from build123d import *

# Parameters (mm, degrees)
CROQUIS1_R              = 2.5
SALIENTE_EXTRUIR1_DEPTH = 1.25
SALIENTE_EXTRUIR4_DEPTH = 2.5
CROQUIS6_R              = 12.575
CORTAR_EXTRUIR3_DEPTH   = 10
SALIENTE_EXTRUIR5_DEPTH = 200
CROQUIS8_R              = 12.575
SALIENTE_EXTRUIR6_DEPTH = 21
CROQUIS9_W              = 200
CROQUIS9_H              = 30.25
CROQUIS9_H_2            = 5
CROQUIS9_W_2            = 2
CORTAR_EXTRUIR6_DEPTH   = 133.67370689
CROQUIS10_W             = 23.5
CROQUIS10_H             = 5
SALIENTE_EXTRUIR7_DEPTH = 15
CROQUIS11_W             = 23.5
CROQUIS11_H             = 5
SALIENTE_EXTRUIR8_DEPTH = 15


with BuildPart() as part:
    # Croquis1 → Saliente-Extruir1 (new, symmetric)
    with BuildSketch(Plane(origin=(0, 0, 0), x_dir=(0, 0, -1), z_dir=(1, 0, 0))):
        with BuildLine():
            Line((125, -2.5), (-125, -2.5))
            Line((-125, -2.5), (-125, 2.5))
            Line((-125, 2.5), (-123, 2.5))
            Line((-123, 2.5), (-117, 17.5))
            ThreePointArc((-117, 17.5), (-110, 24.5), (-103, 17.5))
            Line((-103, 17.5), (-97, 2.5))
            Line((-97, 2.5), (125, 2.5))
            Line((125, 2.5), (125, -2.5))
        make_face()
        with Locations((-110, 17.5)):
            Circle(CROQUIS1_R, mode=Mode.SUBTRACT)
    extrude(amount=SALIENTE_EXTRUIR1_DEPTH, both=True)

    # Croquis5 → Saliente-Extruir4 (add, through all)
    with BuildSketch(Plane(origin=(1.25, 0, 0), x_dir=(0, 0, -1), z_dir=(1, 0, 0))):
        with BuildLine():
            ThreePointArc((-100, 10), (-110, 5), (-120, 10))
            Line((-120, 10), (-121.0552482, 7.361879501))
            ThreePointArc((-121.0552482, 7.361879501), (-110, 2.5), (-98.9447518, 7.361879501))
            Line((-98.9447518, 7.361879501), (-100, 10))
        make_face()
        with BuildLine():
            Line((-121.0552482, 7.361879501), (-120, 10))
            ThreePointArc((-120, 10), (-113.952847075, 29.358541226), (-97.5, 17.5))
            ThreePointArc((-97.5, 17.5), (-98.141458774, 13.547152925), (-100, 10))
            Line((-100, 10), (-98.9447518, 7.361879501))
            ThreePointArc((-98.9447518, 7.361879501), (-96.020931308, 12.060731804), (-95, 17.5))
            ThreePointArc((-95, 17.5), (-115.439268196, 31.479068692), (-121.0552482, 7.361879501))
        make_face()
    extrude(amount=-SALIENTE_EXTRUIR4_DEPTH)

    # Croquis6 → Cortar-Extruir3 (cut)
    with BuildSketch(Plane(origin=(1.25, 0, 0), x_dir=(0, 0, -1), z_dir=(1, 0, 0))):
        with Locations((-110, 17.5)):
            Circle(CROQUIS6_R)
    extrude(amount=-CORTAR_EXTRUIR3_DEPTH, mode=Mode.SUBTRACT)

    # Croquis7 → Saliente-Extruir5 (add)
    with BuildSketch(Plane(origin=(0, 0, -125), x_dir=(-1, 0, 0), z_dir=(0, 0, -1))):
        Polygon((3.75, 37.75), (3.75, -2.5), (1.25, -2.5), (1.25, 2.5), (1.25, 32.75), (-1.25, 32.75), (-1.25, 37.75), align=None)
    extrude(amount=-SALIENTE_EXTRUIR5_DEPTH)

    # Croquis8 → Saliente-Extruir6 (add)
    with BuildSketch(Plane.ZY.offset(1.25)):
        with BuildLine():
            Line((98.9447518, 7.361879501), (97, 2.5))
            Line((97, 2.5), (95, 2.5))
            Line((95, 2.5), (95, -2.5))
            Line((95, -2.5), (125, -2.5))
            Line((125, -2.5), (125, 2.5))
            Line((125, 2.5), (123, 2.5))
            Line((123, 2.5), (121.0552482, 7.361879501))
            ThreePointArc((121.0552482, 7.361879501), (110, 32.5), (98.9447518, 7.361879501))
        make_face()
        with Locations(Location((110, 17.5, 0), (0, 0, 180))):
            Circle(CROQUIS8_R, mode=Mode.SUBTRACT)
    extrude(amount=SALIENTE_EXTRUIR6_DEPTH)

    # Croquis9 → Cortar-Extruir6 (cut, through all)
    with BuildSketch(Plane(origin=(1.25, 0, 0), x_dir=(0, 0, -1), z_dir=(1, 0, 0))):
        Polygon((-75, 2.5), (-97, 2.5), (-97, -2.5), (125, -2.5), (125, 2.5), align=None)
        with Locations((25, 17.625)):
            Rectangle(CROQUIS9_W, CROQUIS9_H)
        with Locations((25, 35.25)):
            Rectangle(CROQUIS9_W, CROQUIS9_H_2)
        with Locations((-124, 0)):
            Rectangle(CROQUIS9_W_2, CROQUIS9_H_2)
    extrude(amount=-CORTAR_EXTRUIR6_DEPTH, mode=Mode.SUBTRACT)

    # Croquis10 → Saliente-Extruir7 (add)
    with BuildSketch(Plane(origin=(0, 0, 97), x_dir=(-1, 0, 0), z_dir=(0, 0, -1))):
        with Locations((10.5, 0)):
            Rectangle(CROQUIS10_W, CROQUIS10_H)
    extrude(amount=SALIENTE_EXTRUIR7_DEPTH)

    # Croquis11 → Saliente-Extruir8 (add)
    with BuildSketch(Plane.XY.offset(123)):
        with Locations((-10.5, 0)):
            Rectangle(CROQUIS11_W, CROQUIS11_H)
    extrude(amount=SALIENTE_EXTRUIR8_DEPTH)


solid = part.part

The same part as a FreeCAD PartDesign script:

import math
import FreeCAD as App
import Part
import Sketcher
from FreeCAD import Vector


def add_polygon(sketch, points):
    """Adds a closed chain of lines whose ends are joined by coincident constraints."""
    first, n = sketch.GeometryCount, len(points)
    for a, b in zip(points, points[1:] + points[:1]):
        sketch.addGeometry(Part.LineSegment(App.Vector(*a, 0), App.Vector(*b, 0)), False)
    for i in range(n):
        sketch.addConstraint(Sketcher.Constraint("Coincident", first + i, 2, first + (i + 1) % n, 1))

doc = App.newDocument("Part")
body = doc.addObject("PartDesign::Body", "Body")

sketch1 = doc.addObject("Sketcher::SketchObject", "Sketch")
body.addObject(sketch1)
sketch1.AttachmentSupport = (doc.YZ_Plane, [""])
sketch1.MapMode = "FlatFace"
sketch1.addGeometry([
    Part.LineSegment(Vector(-2.5, 125, 0), Vector(-2.5, -125, 0)),
    Part.LineSegment(Vector(-2.5, -125, 0), Vector(2.5, -125, 0)),
    Part.LineSegment(Vector(2.5, -125, 0), Vector(2.5, 97, 0)),
    Part.LineSegment(Vector(2.5, 97, 0), Vector(17.5, 103, 0)),
    Part.ArcOfCircle(Part.Circle(Vector(17.5, 110, 0), Vector(0, 0, 1), 7), math.radians(-90), math.radians(90)),
    Part.LineSegment(Vector(17.5, 117, 0), Vector(2.5, 123, 0)),
    Part.LineSegment(Vector(2.5, 123, 0), Vector(2.5, 125, 0)),
    Part.LineSegment(Vector(2.5, 125, 0), Vector(-2.5, 125, 0)),
    Part.Circle(Vector(17.5, 110, 0), Vector(0, 0, 1), 2.5),
], False)
sketch1.addConstraint([
    Sketcher.Constraint("Coincident", 0, 2, 1, 1),
    Sketcher.Constraint("Coincident", 1, 2, 2, 1),
    Sketcher.Constraint("Coincident", 2, 2, 3, 1),
    Sketcher.Constraint("Coincident", 3, 2, 4, 1),
    Sketcher.Constraint("Coincident", 4, 2, 5, 1),
    Sketcher.Constraint("Coincident", 5, 2, 6, 1),
    Sketcher.Constraint("Coincident", 6, 2, 7, 1),
    Sketcher.Constraint("Coincident", 7, 2, 0, 1),
    Sketcher.Constraint("Vertical", 0),
    Sketcher.Constraint("Horizontal", 1),
    Sketcher.Constraint("Vertical", 2),
    Sketcher.Constraint("Vertical", 6),
    Sketcher.Constraint("Horizontal", 7),
    Sketcher.Constraint("Coincident", 8, 3, 4, 3),
    Sketcher.Constraint("Symmetric", 0, 2, 6, 2, -1, 1),
    Sketcher.Constraint("Vertical", 8, 3, 3, 2),
    Sketcher.Constraint("Vertical", 3, 2, 4, 2),
    Sketcher.Constraint("Vertical", 2, 2, 5, 2),
    Sketcher.Constraint("Equal", 3, 5),
    Sketcher.Constraint("Diameter", 8, 5.0),
    Sketcher.Constraint("Radius", 4, 7.0),
    Sketcher.Constraint("DistanceX", 1, 1, 1, 2, 5.0),
    Sketcher.Constraint("DistanceY", 0, 2, 0, 1, 250.0),
    Sketcher.Constraint("DistanceY", 2, 1, 2, 2, 222.0),
    Sketcher.Constraint("DistanceY", 6, 1, 6, 2, 2.0),
    Sketcher.Constraint("DistanceX", 0, 2, 4, 3, 20.0),
])
pad1 = doc.addObject("PartDesign::Pad", "Pad")
body.addObject(pad1)
pad1.Profile = sketch1
pad1.Length = 2.5
pad1.Midplane = True

sketch2 = doc.addObject("Sketcher::SketchObject", "Sketch001")
body.addObject(sketch2)
sketch2.AttachmentSupport = (doc.YZ_Plane, [""])
sketch2.MapMode = "FlatFace"
sketch2.AttachmentOffset = App.Placement(Vector(0, 0, 1.25), App.Rotation())
sketch2.addGeometry([
    Part.ArcOfCircle(Part.Circle(Vector(18, 110, 0), Vector(0, 0, 1), 15), math.radians(133), math.radians(227)),
    Part.ArcOfCircle(Part.Circle(Vector(18, 110, 0), Vector(0, 0, 1), 15), math.radians(-133), math.radians(-90)),
    Part.ArcOfCircle(Part.Circle(Vector(18, 110, 0), Vector(0, 0, 1), 15), math.radians(-90), math.radians(133)),
    Part.ArcOfCircle(Part.Circle(Vector(18, 110, 0), Vector(0, 0, 1), 12), math.radians(127), math.radians(233)),
    Part.ArcOfCircle(Part.Circle(Vector(18, 110, 0), Vector(0, 0, 1), 12), math.radians(-90), math.radians(127)),
    Part.ArcOfCircle(Part.Circle(Vector(17, 110, 0), Vector(0, 0, 1), 12), math.radians(-127), math.radians(-90)),
], False)
sketch2.addConstraint([
    Sketcher.Constraint("Tangent", 0, 2, 1, 1),
    Sketcher.Constraint("Tangent", 1, 2, 2, 1),
    Sketcher.Constraint("Tangent", 2, 2, 0, 1),
    Sketcher.Constraint("Tangent", 3, 1, 4, 2),
    Sketcher.Constraint("Tangent", 4, 1, 5, 2),
    Sketcher.Constraint("Tangent", 5, 1, 3, 2),
    Sketcher.Constraint("Coincident", 3, 3, 0, 3),
    Sketcher.Constraint("Vertical", 5, 3, 1, 2),
    Sketcher.Constraint("Vertical", 0, 2, 2, 2),
    Sketcher.Constraint("Vertical", 1, 2, 4, 1),
    Sketcher.Constraint("Vertical", 3, 1, 5, 1),
    Sketcher.Constraint("Radius", 0, 15.0),
    Sketcher.Constraint("Radius", 3, 12.5),
    Sketcher.Constraint("DistanceY", -1, 1, 0, 3, 110.0),
    Sketcher.Constraint("DistanceX", -1, 1, 3, 1, 10.0),
    Sketcher.Constraint("DistanceY", -1, 1, 3, 1, 120.0),
    Sketcher.Constraint("DistanceX", -1, 1, 0, 2, 7.36188),
])
pad2 = doc.addObject("PartDesign::Pad", "Pad001")
body.addObject(pad2)
pad2.Profile = sketch2
pad2.Length = 2.5
pad2.Reversed = True

sketch3 = doc.addObject("Sketcher::SketchObject", "Sketch002")
body.addObject(sketch3)
sketch3.AttachmentSupport = (doc.YZ_Plane, [""])
sketch3.MapMode = "FlatFace"
sketch3.AttachmentOffset = App.Placement(Vector(0, 0, 1.25), App.Rotation())
sketch3.addGeometry(Part.Circle(Vector(18, 110, 0), Vector(0, 0, 1), 13), False)
sketch3.addConstraint([
    Sketcher.Constraint("Diameter", 0, 25.15),
    Sketcher.Constraint("DistanceY", -1, 1, 0, 3, 110.0),
    Sketcher.Constraint("DistanceX", -1, 1, 0, 3, 17.5),
])
pocket1 = doc.addObject("PartDesign::Pocket", "Pocket")
body.addObject(pocket1)
pocket1.Profile = sketch3
pocket1.Length = 10

sketch4 = doc.addObject("Sketcher::SketchObject", "Sketch003")
body.addObject(sketch4)
sketch4.AttachmentSupport = (doc.XY_Plane, [""])
sketch4.MapMode = "FlatFace"
sketch4.AttachmentOffset = App.Placement(Vector(0, 0, -125), App.Rotation())
add_polygon(sketch4, [(-3.8, -2.5), (-3.8, 37.8), (1.2, 37.8), (1.2, 32.8), (-1.2, 32.8), (-1.2, -2.5)])
sketch4.addConstraint([
    Sketcher.Constraint("Vertical", 0),
    Sketcher.Constraint("Horizontal", 1),
    Sketcher.Constraint("Vertical", 2),
    Sketcher.Constraint("Horizontal", 3),
    Sketcher.Constraint("Vertical", 4),
    Sketcher.Constraint("Horizontal", 5),
    Sketcher.Constraint("Equal", 3, 5),
    Sketcher.Constraint("Equal", 1, 2),
    Sketcher.Constraint("DistanceX", 1, 1, 1, 2, 5.0),
    Sketcher.Constraint("DistanceY", 0, 1, 0, 2, 40.25),
    Sketcher.Constraint("DistanceY", 4, 2, -1, 1, 2.5),
    Sketcher.Constraint("DistanceX", 0, 2, -1, 1, 3.75),
])
pad3 = doc.addObject("PartDesign::Pad", "Pad002")
body.addObject(pad3)
pad3.Profile = sketch4
pad3.Length = 200

sketch5 = doc.addObject("Sketcher::SketchObject", "Sketch004")
body.addObject(sketch5)
sketch5.AttachmentSupport = (doc.YZ_Plane, [""])
sketch5.MapMode = "FlatFace"
sketch5.AttachmentOffset = App.Placement(Vector(0, 0, -1.25), App.Rotation())
sketch5.addGeometry([
    Part.LineSegment(Vector(7.4, 98.9, 0), Vector(2.5, 97, 0)),
    Part.LineSegment(Vector(2.5, 97, 0), Vector(2.5, 95, 0)),
    Part.LineSegment(Vector(2.5, 95, 0), Vector(-2.5, 95, 0)),
    Part.LineSegment(Vector(-2.5, 95, 0), Vector(-2.5, 125, 0)),
    Part.LineSegment(Vector(-2.5, 125, 0), Vector(2.5, 125, 0)),
    Part.LineSegment(Vector(2.5, 125, 0), Vector(2.5, 123, 0)),
    Part.LineSegment(Vector(2.5, 123, 0), Vector(7.4, 121.1, 0)),
    Part.ArcOfCircle(Part.Circle(Vector(17.5, 110, 0), Vector(0, 0, 1), 15), math.radians(-133), math.radians(133)),
    Part.Circle(Vector(17.5, 110, 0), Vector(0, 0, 1), 12.6),
], False)
sketch5.addConstraint([
    Sketcher.Constraint("Coincident", 0, 2, 1, 1),
    Sketcher.Constraint("Coincident", 1, 2, 2, 1),
    Sketcher.Constraint("Coincident", 2, 2, 3, 1),
    Sketcher.Constraint("Coincident", 3, 2, 4, 1),
    Sketcher.Constraint("Coincident", 4, 2, 5, 1),
    Sketcher.Constraint("Coincident", 5, 2, 6, 1),
    Sketcher.Constraint("Coincident", 6, 2, 7, 2),
    Sketcher.Constraint("Coincident", 7, 1, 0, 1),
    Sketcher.Constraint("Vertical", 1),
    Sketcher.Constraint("Horizontal", 2),
    Sketcher.Constraint("Vertical", 3),
    Sketcher.Constraint("Horizontal", 4),
    Sketcher.Constraint("Vertical", 5),
    Sketcher.Constraint("Coincident", 8, 3, 7, 3),
    Sketcher.Constraint("Vertical", 1, 2, 4, 2),
    Sketcher.Constraint("Vertical", 6, 2, 7, 1),
    Sketcher.Constraint("Equal", 1, 5),
    Sketcher.Constraint("Equal", 0, 6),
    Sketcher.Constraint("Radius", 7, 15.0),
    Sketcher.Constraint("Diameter", 8, 25.15),
    Sketcher.Constraint("DistanceX", 2, 2, 2, 1, 5.0),
    Sketcher.Constraint("DistanceY", 1, 2, 1, 1, 2.0),
    Sketcher.Constraint("DistanceY", 3, 1, 3, 2, 30.0),
    Sketcher.Constraint("DistanceY", -1, 1, 7, 3, 110.0),
    Sketcher.Constraint("DistanceX", 0, 2, 7, 3, 15.0),
    Sketcher.Constraint("DistanceX", -1, 1, 7, 3, 17.5),
    Sketcher.Constraint("DistanceX", -1, 1, 6, 2, 7.36188),
])
pad4 = doc.addObject("PartDesign::Pad", "Pad003")
body.addObject(pad4)
pad4.Profile = sketch5
pad4.Length = 21
pad4.Reversed = True

sketch6 = doc.addObject("Sketcher::SketchObject", "Sketch005")
body.addObject(sketch6)
sketch6.AttachmentSupport = (doc.YZ_Plane, [""])
sketch6.MapMode = "FlatFace"
sketch6.AttachmentOffset = App.Placement(Vector(0, 0, 1.25), App.Rotation())
add_polygon(sketch6, [(2.5, 97), (-2.5, 97), (-2.5, -125), (37.8, -125), (37.8, 75), (2.5, 75)])
add_polygon(sketch6, [(2.5, 125), (-2.5, 125), (-2.5, 123), (2.5, 123)])
sketch6.addConstraint([
    Sketcher.Constraint("Horizontal", 0),
    Sketcher.Constraint("Vertical", 1),
    Sketcher.Constraint("Horizontal", 2),
    Sketcher.Constraint("Vertical", 3),
    Sketcher.Constraint("Horizontal", 4),
    Sketcher.Constraint("Vertical", 5),
    Sketcher.Constraint("Horizontal", 6),
    Sketcher.Constraint("Vertical", 7),
    Sketcher.Constraint("Horizontal", 8),
    Sketcher.Constraint("Vertical", 9),
    Sketcher.Constraint("Symmetric", 1, 2, 9, 2, -1, 1),
    Sketcher.Constraint("Vertical", 1, 2, 6, 2),
    Sketcher.Constraint("Vertical", 5, 2, 8, 2),
    Sketcher.Constraint("DistanceX", 0, 2, 0, 1, 5.0),
    Sketcher.Constraint("DistanceY", 1, 2, 1, 1, 222.0),
    Sketcher.Constraint("DistanceY", 3, 1, 3, 2, 200.0),
    Sketcher.Constraint("DistanceY", 7, 2, 7, 1, 2.0),
    Sketcher.Constraint("DistanceY", -1, 1, 0, 2, 97.0),
    Sketcher.Constraint("DistanceX", 2, 1, 2, 2, 40.25),
])
pocket2 = doc.addObject("PartDesign::Pocket", "Pocket001")
body.addObject(pocket2)
pocket2.Profile = sketch6
pocket2.Type = "ThroughAll"

sketch7 = doc.addObject("Sketcher::SketchObject", "Sketch006")
body.addObject(sketch7)
sketch7.AttachmentSupport = (doc.XY_Plane, [""])
sketch7.MapMode = "FlatFace"
sketch7.AttachmentOffset = App.Placement(Vector(0, 0, 97), App.Rotation())
add_polygon(sketch7, [(1, 2), (1, -2), (-22, -2), (-22, 2)])
sketch7.addConstraint([
    Sketcher.Constraint("Vertical", 0),
    Sketcher.Constraint("Horizontal", 1),
    Sketcher.Constraint("Vertical", 2),
    Sketcher.Constraint("Horizontal", 3),
    Sketcher.Constraint("DistanceY", 0, 2, 0, 1, 5.0),
    Sketcher.Constraint("DistanceX", 1, 2, 1, 1, 23.5),
    Sketcher.Constraint("DistanceY", 0, 2, -1, 1, 2.5),
    Sketcher.Constraint("DistanceX", -1, 1, 0, 2, 1.25),
])
pad5 = doc.addObject("PartDesign::Pad", "Pad004")
body.addObject(pad5)
pad5.Profile = sketch7
pad5.Length = 15
pad5.Reversed = True

sketch8 = doc.addObject("Sketcher::SketchObject", "Sketch007")
body.addObject(sketch8)
sketch8.AttachmentSupport = (doc.XY_Plane, [""])
sketch8.MapMode = "FlatFace"
sketch8.AttachmentOffset = App.Placement(Vector(0, 0, 123), App.Rotation())
add_polygon(sketch8, [(-22, 2), (-22, -2), (1, -2), (1, 2)])
sketch8.addConstraint([
    Sketcher.Constraint("Vertical", 0),
    Sketcher.Constraint("Horizontal", 1),
    Sketcher.Constraint("Vertical", 2),
    Sketcher.Constraint("Horizontal", 3),
    Sketcher.Constraint("DistanceY", 0, 2, 0, 1, 5.0),
    Sketcher.Constraint("DistanceX", 1, 1, 1, 2, 23.5),
    Sketcher.Constraint("DistanceY", 0, 2, -1, 1, 2.5),
    Sketcher.Constraint("DistanceX", 0, 2, -1, 1, 22.25),
])
pad6 = doc.addObject("PartDesign::Pad", "Pad005")
body.addObject(pad6)
pad6.Profile = sketch8
pad6.Length = 15

doc.recompute()
